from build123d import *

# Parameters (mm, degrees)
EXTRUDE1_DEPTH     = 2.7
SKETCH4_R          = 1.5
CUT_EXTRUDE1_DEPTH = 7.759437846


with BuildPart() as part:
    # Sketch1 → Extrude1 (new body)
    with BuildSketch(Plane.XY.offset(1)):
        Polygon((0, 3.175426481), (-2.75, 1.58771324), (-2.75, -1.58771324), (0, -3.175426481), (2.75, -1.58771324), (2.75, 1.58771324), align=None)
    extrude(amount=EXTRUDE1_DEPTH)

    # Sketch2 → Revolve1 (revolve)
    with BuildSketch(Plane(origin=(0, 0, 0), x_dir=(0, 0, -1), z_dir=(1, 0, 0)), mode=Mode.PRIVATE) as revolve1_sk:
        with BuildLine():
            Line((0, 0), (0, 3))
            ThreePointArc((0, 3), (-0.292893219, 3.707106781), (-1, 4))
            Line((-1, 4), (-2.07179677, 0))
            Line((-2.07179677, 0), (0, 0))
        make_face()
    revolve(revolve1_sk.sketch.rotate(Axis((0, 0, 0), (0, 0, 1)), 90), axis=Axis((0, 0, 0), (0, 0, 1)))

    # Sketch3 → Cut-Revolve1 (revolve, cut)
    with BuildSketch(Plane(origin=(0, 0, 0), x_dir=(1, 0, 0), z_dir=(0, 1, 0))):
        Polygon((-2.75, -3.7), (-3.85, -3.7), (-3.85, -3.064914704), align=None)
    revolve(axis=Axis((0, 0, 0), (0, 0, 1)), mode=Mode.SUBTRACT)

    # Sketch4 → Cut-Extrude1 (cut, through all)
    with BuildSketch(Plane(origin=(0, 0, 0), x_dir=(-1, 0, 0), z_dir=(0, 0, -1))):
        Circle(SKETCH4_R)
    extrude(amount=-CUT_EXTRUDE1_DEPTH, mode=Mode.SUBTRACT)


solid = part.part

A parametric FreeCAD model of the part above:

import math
import FreeCAD as App
import Part
import Sketcher
from FreeCAD import Vector
Q = App.Units.Quantity

doc = App.newDocument("Part")
body = doc.addObject("PartDesign::Body", "Body")

# Sketch on XY plane
sketch1 = body.newObject("Sketcher::SketchObject", "Sketch")
sketch1.AttachmentSupport = (doc.getObject("XY_Plane"), [""])
sketch1.MapMode = "FlatFace"
sketch1.AttachmentOffset = App.Placement(Vector(0, 0, 1), App.Rotation())
sketch1.addGeometry([
    Part.LineSegment(Vector(0, 3.175426, 0), Vector(-2.75, 1.587713, 0)),  # 0
    Part.LineSegment(Vector(-2.75, 1.587713, 0), Vector(-2.75, -1.587713, 0)),  # 1
    Part.LineSegment(Vector(-2.75, -1.587713, 0), Vector(0, -3.175426, 0)),  # 2
    Part.LineSegment(Vector(0, -3.175426, 0), Vector(2.75, -1.587713, 0)),  # 3
    Part.LineSegment(Vector(2.75, -1.587713, 0), Vector(2.75, 1.587713, 0)),  # 4
    Part.LineSegment(Vector(2.75, 1.587713, 0), Vector(0, 3.175426, 0)),  # 5
], False)
sketch1.addConstraint([
    Sketcher.Constraint("Coincident", 0, 2, 1, 1),
    Sketcher.Constraint("Coincident", 1, 2, 2, 1),
    Sketcher.Constraint("Coincident", 2, 2, 3, 1),
    Sketcher.Constraint("Coincident", 3, 2, 4, 1),
    Sketcher.Constraint("Coincident", 4, 2, 5, 1),
    Sketcher.Constraint("Coincident", 5, 2, 0, 1),
    Sketcher.Constraint("Vertical", 1),
    Sketcher.Constraint("Vertical", 4),
    Sketcher.Constraint("Symmetric", 0, 2, 3, 2, -1, 1),
    Sketcher.Constraint("Symmetric", 2, 2, 5, 2, -1, 1),
    Sketcher.Constraint("PointOnObject", 2, 2, -2),
    Sketcher.Constraint("Parallel", 2, 5),
    Sketcher.Constraint("Horizontal", 1, 2, 3, 2),
    Sketcher.Constraint("Angle", 0, Q("-150 deg")),
    Sketcher.Constraint("DistanceX", 1, 2, 3, 2, 5.5),
    Sketcher.Constraint("DistanceY", 1, 2, 1, 1, 3.175426),
])
pad1 = body.newObject("PartDesign::Pad", "Pad")
pad1.Profile = sketch1
pad1.Length = 2.7

# Sketch on YZ plane
sketch2 = body.newObject("Sketcher::SketchObject", "Sketch001")
sketch2.AttachmentSupport = (doc.getObject("YZ_Plane"), [""])
sketch2.MapMode = "FlatFace"
sketch2.addGeometry([
    Part.LineSegment(Vector(0, 0, 0), Vector(3, 0, 0)),
    Part.ArcOfCircle(Part.Circle(Vector(3, 1, 0), Vector(0, 0, 1), 1), math.radians(-90), math.radians(0)),
    Part.LineSegment(Vector(4, 1, 0), Vector(0, 2.071797, 0)),
    Part.LineSegment(Vector(0, 2.071797, 0), Vector(0, 0, 0)),
], False)
sketch2.addConstraint([
    Sketcher.Constraint("Tangent", 0, 2, 1, 1),
    Sketcher.Constraint("Coincident", 1, 2, 2, 1),
    Sketcher.Constraint("Coincident", 2, 2, 3, 1),
    Sketcher.Constraint("Coincident", 3, 2, 0, 1),
    Sketcher.Constraint("Horizontal", 0),
    Sketcher.Constraint("Vertical", 3),
    Sketcher.Constraint("Coincident", 3, 2, -1, 1),
    Sketcher.Constraint("Radius", 1, 1.0),
    Sketcher.Constraint("DistanceX", 0, 1, 0, 2, 3.0),
    Sketcher.Constraint("Angle", 2, Q("165 deg")),
    Sketcher.Constraint("DistanceY", -1, 1, 1, 2, 1.0),
])
revolution = body.newObject("PartDesign::Revolution", "Revolution")
revolution.Profile = sketch2
revolution.ReferenceAxis = (sketch2, ["V_Axis"])
revolution.Angle = 360

# Sketch on XZ plane
sketch3 = body.newObject("Sketcher::SketchObject", "Sketch002")
sketch3.AttachmentSupport = (doc.getObject("XZ_Plane"), [""])
sketch3.MapMode = "FlatFace"
sketch3.addGeometry([
    Part.LineSegment(Vector(-3.85, 3.7, 0), Vector(-2.75, 3.7, 0)),
    Part.LineSegment(Vector(-2.75, 3.7, 0), Vector(-3.85, 3.064915, 0)),
    Part.LineSegment(Vector(-3.85, 3.064915, 0), Vector(-3.85, 3.7, 0)),
], False)
sketch3.addConstraint([
    Sketcher.Constraint("Coincident", 0, 2, 1, 1),
    Sketcher.Constraint("Coincident", 1, 2, 2, 1),
    Sketcher.Constraint("Coincident", 2, 2, 0, 1),
    Sketcher.Constraint("Horizontal", 0),
    Sketcher.Constraint("Vertical", 2),
    Sketcher.Constraint("Angle", 1, Q("-150 deg")),
    Sketcher.Constraint("DistanceX", 0, 1, 0, 2, 1.1),
    Sketcher.Constraint("DistanceY", -1, 1, 0, 2, 3.7),
    Sketcher.Constraint("DistanceX", 0, 2, -1, 1, 2.75),
])
groove = body.newObject("PartDesign::Groove", "Groove")
groove.Profile = sketch3
groove.ReferenceAxis = (sketch3, ["V_Axis"])
groove.Angle = 360

# Sketch on XY plane
sketch4 = body.newObject("Sketcher::SketchObject", "Sketch003")
sketch4.AttachmentSupport = (doc.getObject("XY_Plane"), [""])
sketch4.MapMode = "FlatFace"
sketch4.addGeometry(Part.Circle(Vector(0, 0, 0), Vector(0, 0, 1), 1.5), False)
sketch4.addConstraint([
    Sketcher.Constraint("Coincident", 0, 3, -1, 1),
    Sketcher.Constraint("Diameter", 0, 3.0),
])
pocket1 = body.newObject("PartDesign::Pocket", "Pocket")
pocket1.Profile = sketch4
pocket1.Type = "ThroughAll"
pocket1.Reversed = True

doc.recompute()
